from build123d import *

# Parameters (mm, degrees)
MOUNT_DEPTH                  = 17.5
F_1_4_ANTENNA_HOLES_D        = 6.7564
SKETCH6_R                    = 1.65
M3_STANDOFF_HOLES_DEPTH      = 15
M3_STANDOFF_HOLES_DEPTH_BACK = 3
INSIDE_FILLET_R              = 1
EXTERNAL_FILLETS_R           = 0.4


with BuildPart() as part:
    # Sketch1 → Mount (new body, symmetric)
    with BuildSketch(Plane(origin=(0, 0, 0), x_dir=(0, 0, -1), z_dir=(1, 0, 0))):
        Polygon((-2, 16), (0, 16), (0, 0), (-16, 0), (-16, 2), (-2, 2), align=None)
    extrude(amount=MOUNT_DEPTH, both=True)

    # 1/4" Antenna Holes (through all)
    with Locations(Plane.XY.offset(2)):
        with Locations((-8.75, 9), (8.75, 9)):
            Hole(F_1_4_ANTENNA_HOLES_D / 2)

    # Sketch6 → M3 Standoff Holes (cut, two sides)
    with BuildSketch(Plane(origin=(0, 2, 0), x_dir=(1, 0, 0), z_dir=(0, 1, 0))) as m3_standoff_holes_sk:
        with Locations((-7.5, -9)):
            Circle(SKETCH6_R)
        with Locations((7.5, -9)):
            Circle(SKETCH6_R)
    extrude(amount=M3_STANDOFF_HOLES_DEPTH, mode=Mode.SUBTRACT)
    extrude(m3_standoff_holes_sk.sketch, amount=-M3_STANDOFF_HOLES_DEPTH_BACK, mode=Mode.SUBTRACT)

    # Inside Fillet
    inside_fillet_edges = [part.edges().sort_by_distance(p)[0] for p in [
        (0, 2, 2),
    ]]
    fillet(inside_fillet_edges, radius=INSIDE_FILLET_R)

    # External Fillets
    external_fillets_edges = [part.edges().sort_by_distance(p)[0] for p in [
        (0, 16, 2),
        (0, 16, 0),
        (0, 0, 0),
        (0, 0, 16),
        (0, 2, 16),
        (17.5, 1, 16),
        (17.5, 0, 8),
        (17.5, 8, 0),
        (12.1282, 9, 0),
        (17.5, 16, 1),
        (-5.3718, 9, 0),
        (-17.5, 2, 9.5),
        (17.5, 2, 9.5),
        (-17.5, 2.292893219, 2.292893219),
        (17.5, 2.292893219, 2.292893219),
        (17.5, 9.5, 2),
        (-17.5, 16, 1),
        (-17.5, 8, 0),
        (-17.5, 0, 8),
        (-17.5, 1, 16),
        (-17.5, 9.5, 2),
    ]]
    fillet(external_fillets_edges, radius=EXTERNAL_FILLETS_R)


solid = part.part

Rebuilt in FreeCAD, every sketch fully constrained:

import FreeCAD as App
import Part
import Sketcher

V = App.Vector
Q = App.Units.Quantity


def edges_at(feature, points):
    """Names of the edges that pass closest to the given points."""
    edges = feature.Shape.Edges
    near = lambda p: min(range(len(edges)), key=lambda i: edges[i].distToShape(Part.Vertex(*p))[0])
    return sorted({f"Edge{near(p) + 1}" for p in points})

doc = App.newDocument("Part")
body = doc.addObject("PartDesign::Body", "Body")

# Sketch on YZ plane
sketch1 = body.newObject("Sketcher::SketchObject", "Sketch")
sketch1.AttachmentSupport = (doc.getObject("YZ_Plane"), [""])
sketch1.MapMode = "FlatFace"
sketch1.addGeometry([
    Part.LineSegment(V(16, 0, 0), V(16, 2, 0)),  # 0
    Part.LineSegment(V(16, 2, 0), V(2, 2, 0)),  # 1
    Part.LineSegment(V(2, 2, 0), V(2, 16, 0)),  # 2
    Part.LineSegment(V(2, 16, 0), V(0, 16, 0)),  # 3
    Part.LineSegment(V(0, 16, 0), V(0, 0, 0)),  # 4
    Part.LineSegment(V(0, 0, 0), V(16, 0, 0)),  # 5
], False)
sketch1.addConstraint([
    Sketcher.Constraint("Coincident", 0, 2, 1, 1),
    Sketcher.Constraint("Coincident", 1, 2, 2, 1),
    Sketcher.Constraint("Coincident", 2, 2, 3, 1),
    Sketcher.Constraint("Coincident", 3, 2, 4, 1),
    Sketcher.Constraint("Coincident", 4, 2, 5, 1),
    Sketcher.Constraint("Coincident", 5, 2, 0, 1),
    Sketcher.Constraint("Vertical", 0),
    Sketcher.Constraint("Horizontal", 1),
    Sketcher.Constraint("Vertical", 2),
    Sketcher.Constraint("Horizontal", 3),
    Sketcher.Constraint("Vertical", 4),
    Sketcher.Constraint("Horizontal", 5),
    Sketcher.Constraint("Coincident", 4, 2, -1, 1),
    Sketcher.Constraint("Equal", 3, 0),
    Sketcher.Constraint("Equal", 1, 2),
    Sketcher.Constraint("DistanceX", 1, 2, 1, 1, Q("14 mm")),
    Sketcher.Constraint("DistanceX", 3, 2, 3, 1, Q("2 mm")),
])
pad1 = body.newObject("PartDesign::Pad", "Pad")
pad1.Profile = sketch1
pad1.Length = 35
pad1.Midplane = True

# Sketch on XY plane
sketch2 = body.newObject("Sketcher::SketchObject", "Sketch001")
sketch2.AttachmentSupport = (doc.getObject("XY_Plane"), [""])
sketch2.MapMode = "FlatFace"
sketch2.AttachmentOffset = App.Placement(V(0, 0, 2), App.Rotation())
sketch2.addGeometry([
    Part.Circle(V(-8.8, 9, 0), V(0, 0, 1), 3.4),
    Part.Circle(V(8.8, 9, 0), V(0, 0, 1), 3.4),
], False)
sketch2.addConstraint([
    Sketcher.Constraint("Equal", 0, 1),
    Sketcher.Constraint("Symmetric", 0, 3, 1, 3, -2),
    Sketcher.Constraint("DistanceY", -1, 1, 0, 3, Q("9 mm")),
    Sketcher.Constraint("Diameter", 0, Q("6.7564 mm")),
    Sketcher.Constraint("DistanceX", 0, 3, 1, 3, Q("17.5 mm")),
])
doc.recompute()
hole = body.newObject("PartDesign::Hole", "Hole")
hole.Profile = sketch2
hole.ThreadType = "None"
hole.Diameter = 6.7564
hole.DepthType = "ThroughAll"

# Sketch on XZ plane
sketch3 = body.newObject("Sketcher::SketchObject", "Sketch002")
sketch3.AttachmentSupport = (doc.getObject("XZ_Plane"), [""])
sketch3.MapMode = "FlatFace"
sketch3.AttachmentOffset = App.Placement(V(0, 0, -2), App.Rotation())
sketch3.addGeometry([
    Part.Circle(V(-7.5, 9, 0), V(0, 0, 1), 1.6),
    Part.Circle(V(7.5, 9, 0), V(0, 0, 1), 1.6),
], False)
sketch3.addConstraint([
    Sketcher.Constraint("Equal", 0, 1),
    Sketcher.Constraint("Symmetric", 0, 3, 1, 3, -2),
    Sketcher.Constraint("Diameter", 0, Q("3.3 mm")),
    Sketcher.Constraint("DistanceY", -1, 1, 0, 3, Q("9 mm")),
    Sketcher.Constraint("DistanceX", 0, 3, 1, 3, Q("15 mm")),
])
pocket1 = body.newObject("PartDesign::Pocket", "Pocket")
pocket1.Profile = sketch3
pocket1.Type = "ThroughAll"
pocket1.Midplane = True
doc.recompute()

fillet = body.newObject("PartDesign::Fillet", "Fillet")
fillet.Base = (pocket1, edges_at(pocket1, [(0, 2, 2)]))
fillet.Radius = 1
doc.recompute()

fillet2 = body.newObject("PartDesign::Fillet", "Fillet001")
fillet2.Base = (fillet, edges_at(fillet, [
    (0, 16, 2),
    (0, 16, 0),
    (0, 0, 0),
    (0, 0, 16),
    (0, 2, 16),
    (17.5, 1, 16),
    (17.5, 0, 8),
    (17.5, 8, 0),
    (12.128, 9, 0),
    (17.5, 16, 1),
    (-5.372, 9, 0),
    (-17.5, 2, 9.5),
    (17.5, 2, 9.5),
    (-17.5, 2.293, 2.293),
    (17.5, 2.293, 2.293),
    (17.5, 9.5, 2),
    (-17.5, 16, 1),
    (-17.5, 8, 0),
    (-17.5, 0, 8),
    (-17.5, 1, 16),
    (-17.5, 9.5, 2),
]))
fillet2.Radius = 0.4

doc.recompute()
